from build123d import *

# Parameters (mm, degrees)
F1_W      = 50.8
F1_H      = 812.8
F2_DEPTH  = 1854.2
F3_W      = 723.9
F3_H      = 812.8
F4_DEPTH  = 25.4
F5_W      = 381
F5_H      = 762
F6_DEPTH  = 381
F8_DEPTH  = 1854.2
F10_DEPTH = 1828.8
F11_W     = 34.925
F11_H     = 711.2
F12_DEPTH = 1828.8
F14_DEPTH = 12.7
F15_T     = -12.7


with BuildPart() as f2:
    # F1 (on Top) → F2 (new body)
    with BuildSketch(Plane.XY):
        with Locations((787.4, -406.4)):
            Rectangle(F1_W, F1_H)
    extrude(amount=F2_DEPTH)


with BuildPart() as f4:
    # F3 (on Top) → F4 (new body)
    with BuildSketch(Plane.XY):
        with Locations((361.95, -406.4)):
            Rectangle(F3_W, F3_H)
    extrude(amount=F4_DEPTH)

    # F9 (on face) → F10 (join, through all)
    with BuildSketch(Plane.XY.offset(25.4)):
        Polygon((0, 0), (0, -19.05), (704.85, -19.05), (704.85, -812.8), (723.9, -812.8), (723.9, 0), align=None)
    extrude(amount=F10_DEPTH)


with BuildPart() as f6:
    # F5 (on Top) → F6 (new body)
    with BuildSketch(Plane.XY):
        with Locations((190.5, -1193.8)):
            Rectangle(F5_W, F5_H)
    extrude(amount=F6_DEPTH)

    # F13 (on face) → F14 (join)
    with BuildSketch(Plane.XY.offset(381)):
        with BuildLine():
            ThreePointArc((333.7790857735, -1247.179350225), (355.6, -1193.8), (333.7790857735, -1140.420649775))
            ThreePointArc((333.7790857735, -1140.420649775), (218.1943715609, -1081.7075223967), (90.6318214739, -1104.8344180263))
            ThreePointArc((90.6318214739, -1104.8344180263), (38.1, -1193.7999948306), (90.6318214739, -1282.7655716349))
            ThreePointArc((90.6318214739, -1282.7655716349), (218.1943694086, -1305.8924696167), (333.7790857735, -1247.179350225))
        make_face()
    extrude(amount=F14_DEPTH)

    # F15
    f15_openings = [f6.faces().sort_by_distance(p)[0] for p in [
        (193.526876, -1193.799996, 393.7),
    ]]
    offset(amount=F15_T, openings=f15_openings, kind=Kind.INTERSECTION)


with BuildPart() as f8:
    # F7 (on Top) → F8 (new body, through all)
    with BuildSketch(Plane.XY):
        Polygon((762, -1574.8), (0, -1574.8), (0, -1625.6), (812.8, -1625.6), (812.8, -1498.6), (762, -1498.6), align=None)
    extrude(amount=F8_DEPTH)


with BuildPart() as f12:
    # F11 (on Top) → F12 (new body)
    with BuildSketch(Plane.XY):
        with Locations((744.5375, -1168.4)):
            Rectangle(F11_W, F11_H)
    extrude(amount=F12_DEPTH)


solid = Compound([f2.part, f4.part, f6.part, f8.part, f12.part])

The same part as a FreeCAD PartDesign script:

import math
import FreeCAD as App
import Part
import Sketcher
from FreeCAD import Vector
Q = App.Units.Quantity


def faces_at(feature, points):
    """Names of the faces that lie closest to the given points."""
    faces = feature.Shape.Faces
    near = lambda p: min(range(len(faces)), key=lambda i: faces[i].distToShape(Part.Vertex(*p))[0])
    return sorted({f"Face{near(p) + 1}" for p in points})

doc = App.newDocument("Part")
body = doc.addObject("PartDesign::Body", "Body")

sketch1 = body.newObject("Sketcher::SketchObject", "Sketch")
sketch1.AttachmentSupport = (doc.getObject("XY_Plane"), [""])
sketch1.MapMode = "FlatFace"
sketch1.addGeometry([
    Part.LineSegment(Vector(762, 0, 0), Vector(762, -812.8, 0)),
    Part.LineSegment(Vector(762, -812.8, 0), Vector(812.8, -812.8, 0)),
    Part.LineSegment(Vector(812.8, -812.8, 0), Vector(812.8, 0, 0)),
    Part.LineSegment(Vector(812.8, 0, 0), Vector(762, 0, 0)),
], False)
sketch1.addConstraint([
    Sketcher.Constraint("Coincident", 0, 2, 1, 1),
    Sketcher.Constraint("Coincident", 1, 2, 2, 1),
    Sketcher.Constraint("Coincident", 2, 2, 3, 1),
    Sketcher.Constraint("Coincident", 3, 2, 0, 1),
    Sketcher.Constraint("Vertical", 0),
    Sketcher.Constraint("Horizontal", 1),
    Sketcher.Constraint("Vertical", 2),
    Sketcher.Constraint("Horizontal", 3),
    Sketcher.Constraint("PointOnObject", 2, 2, -1),
    Sketcher.Constraint("DistanceX", 1, 1, 1, 2, Q("2 in")),
    Sketcher.Constraint("DistanceY", 0, 2, 0, 1, Q("32 in")),
    Sketcher.Constraint("DistanceX", -1, 1, 0, 2, Q("30 in")),
])
pad1 = body.newObject("PartDesign::Pad", "Pad")
pad1.Profile = sketch1
pad1.Length = Q("73 in")
body2 = doc.addObject("PartDesign::Body", "Body001")

sketch2 = body2.newObject("Sketcher::SketchObject", "Sketch001")
sketch2.AttachmentSupport = (doc.getObject("XY_Plane001"), [""])
sketch2.MapMode = "FlatFace"
sketch2.addGeometry([
    Part.LineSegment(Vector(0, 0, 0), Vector(0, -812.8, 0)),
    Part.LineSegment(Vector(0, -812.8, 0), Vector(723.9, -812.8, 0)),
    Part.LineSegment(Vector(723.9, -812.8, 0), Vector(723.9, 0, 0)),
    Part.LineSegment(Vector(723.9, 0, 0), Vector(0, 0, 0)),
], False)
sketch2.addConstraint([
    Sketcher.Constraint("Coincident", 0, 2, 1, 1),
    Sketcher.Constraint("Coincident", 1, 2, 2, 1),
    Sketcher.Constraint("Coincident", 2, 2, 3, 1),
    Sketcher.Constraint("Coincident", 3, 2, 0, 1),
    Sketcher.Constraint("Vertical", 0),
    Sketcher.Constraint("Horizontal", 1),
    Sketcher.Constraint("Vertical", 2),
    Sketcher.Constraint("Horizontal", 3),
    Sketcher.Constraint("Coincident", 3, 2, -1, 1),
    Sketcher.Constraint("DistanceY", 0, 2, 0, 1, Q("32 in")),
    Sketcher.Constraint("DistanceX", 1, 1, 1, 2, Q("28.5 in")),
])
pad2 = body2.newObject("PartDesign::Pad", "Pad001")
pad2.Profile = sketch2
pad2.Length = Q("1 in")

sketch3 = body2.newObject("Sketcher::SketchObject", "Sketch002")
sketch3.AttachmentSupport = (doc.getObject("XY_Plane001"), [""])
sketch3.MapMode = "FlatFace"
sketch3.AttachmentOffset = App.Placement(Vector(0, 0, 1 * 25.4), App.Rotation())
sketch3.addGeometry([
    Part.LineSegment(Vector(0, 0, 0), Vector(0, -19.05, 0)),
    Part.LineSegment(Vector(0, -19.05, 0), Vector(704.85, -19.05, 0)),
    Part.LineSegment(Vector(704.85, -19.05, 0), Vector(704.85, -812.8, 0)),
    Part.LineSegment(Vector(704.85, -812.8, 0), Vector(723.9, -812.8, 0)),
    Part.LineSegment(Vector(723.9, -812.8, 0), Vector(723.9, 0, 0)),
    Part.LineSegment(Vector(723.9, 0, 0), Vector(0, 0, 0)),
], False)
sketch3.addConstraint([
    Sketcher.Constraint("Coincident", 0, 2, 1, 1),
    Sketcher.Constraint("Coincident", 1, 2, 2, 1),
    Sketcher.Constraint("Coincident", 2, 2, 3, 1),
    Sketcher.Constraint("Coincident", 3, 2, 4, 1),
    Sketcher.Constraint("Coincident", 4, 2, 5, 1),
    Sketcher.Constraint("Coincident", 5, 2, 0, 1),
    Sketcher.Constraint("Vertical", 0),
    Sketcher.Constraint("Horizontal", 1),
    Sketcher.Constraint("Vertical", 2),
    Sketcher.Constraint("Horizontal", 3),
    Sketcher.Constraint("Vertical", 4),
    Sketcher.Constraint("Horizontal", 5),
    Sketcher.Constraint("Coincident", 5, 2, -1, 1),
    Sketcher.Constraint("Equal", 3, 0),
    Sketcher.Constraint("DistanceY", 4, 1, 4, 2, Q("32 in")),
    Sketcher.Constraint("DistanceX", 5, 2, 5, 1, Q("28.5 in")),
    Sketcher.Constraint("DistanceX", 1, 1, 1, 2, Q("27.75 in")),
])
pad3 = body2.newObject("PartDesign::Pad", "Pad002")
pad3.Profile = sketch3
pad3.Length = Q("72 in")
body3 = doc.addObject("PartDesign::Body", "Body002")

sketch4 = body3.newObject("Sketcher::SketchObject", "Sketch003")
sketch4.AttachmentSupport = (doc.getObject("XY_Plane002"), [""])
sketch4.MapMode = "FlatFace"
sketch4.addGeometry([
    Part.LineSegment(Vector(0, -812.8, 0), Vector(0, -1574.8, 0)),
    Part.LineSegment(Vector(0, -1574.8, 0), Vector(381, -1574.8, 0)),
    Part.LineSegment(Vector(381, -1574.8, 0), Vector(381, -812.8, 0)),
    Part.LineSegment(Vector(381, -812.8, 0), Vector(0, -812.8, 0)),
], False)
sketch4.addConstraint([
    Sketcher.Constraint("Coincident", 0, 2, 1, 1),
    Sketcher.Constraint("Coincident", 1, 2, 2, 1),
    Sketcher.Constraint("Coincident", 2, 2, 3, 1),
    Sketcher.Constraint("Coincident", 3, 2, 0, 1),
    Sketcher.Constraint("Vertical", 0),
    Sketcher.Constraint("Horizontal", 1),
    Sketcher.Constraint("Vertical", 2),
    Sketcher.Constraint("Horizontal", 3),
    Sketcher.Constraint("PointOnObject", 0, 2, -2),
    Sketcher.Constraint("DistanceX", 1, 1, 1, 2, Q("15 in")),
    Sketcher.Constraint("DistanceY", 0, 2, 0, 1, Q("30 in")),
    Sketcher.Constraint("DistanceY", 0, 2, -1, 1, Q("62 in")),
])
pad4 = body3.newObject("PartDesign::Pad", "Pad003")
pad4.Profile = sketch4
pad4.Length = Q("15 in")

sketch5 = body3.newObject("Sketcher::SketchObject", "Sketch004")
sketch5.AttachmentSupport = (doc.getObject("XY_Plane002"), [""])
sketch5.MapMode = "FlatFace"
sketch5.AttachmentOffset = App.Placement(Vector(0, 0, 15 * 25.4), App.Rotation())
sketch5.addGeometry([
    Part.ArcOfCircle(Part.Circle(Vector(279.4, -1193.8, 0), Vector(0, 0, 1), 76.2), math.radians(-44.46845), math.radians(44.46845)),
    Part.ArcOfCircle(Part.Circle(Vector(188.768179, -1282.765572, 0), Vector(0, 0, 1), 203.2), math.radians(44.468445), math.radians(118.878544)),
    Part.ArcOfCircle(Part.Circle(Vector(139.7, -1193.799995, 0), Vector(0, 0, 1), 101.6), math.radians(118.878544), math.radians(241.121456)),
    Part.ArcOfCircle(Part.Circle(Vector(188.768183, -1104.834409, 0), Vector(0, 0, 1), 203.20001), math.radians(-118.878544), math.radians(-44.46845)),
], False)
sketch5.addConstraint([
    Sketcher.Constraint("Tangent", 0, 2, 1, 1),
    Sketcher.Constraint("Tangent", 1, 2, 2, 1),
    Sketcher.Constraint("Tangent", 2, 2, 3, 1),
    Sketcher.Constraint("Tangent", 3, 2, 0, 1),
    Sketcher.Constraint("Horizontal", 1, 3, 2, 2),
    Sketcher.Constraint("Vertical", 1, 2, 2, 2),
    Sketcher.Constraint("Vertical", 0, 2, 3, 2),
    Sketcher.Constraint("Radius", 0, Q("3 in")),
    Sketcher.Constraint("Radius", 1, Q("8 in")),
    Sketcher.Constraint("DistanceX", -1, 1, 0, 3, Q("11 in")),
    Sketcher.Constraint("DistanceY", 0, 3, -1, 1, Q("47 in")),
    Sketcher.Constraint("DistanceX", -1, 1, 2, 3, Q("5.5 in")),
])
pad5 = body3.newObject("PartDesign::Pad", "Pad004")
pad5.Profile = sketch5
pad5.Length = Q("0.5 in")
doc.recompute()

thickness = body3.newObject("PartDesign::Thickness", "Thickness")
thickness.Base = (pad5, faces_at(pad5, [(196.85, -1193.8, 393.7)]))
thickness.Value = Q("0.5 in")
thickness.Reversed = True
thickness.Join = "Intersection"
body4 = doc.addObject("PartDesign::Body", "Body003")

sketch6 = body4.newObject("Sketcher::SketchObject", "Sketch005")
sketch6.AttachmentSupport = (doc.getObject("XY_Plane003"), [""])
sketch6.MapMode = "FlatFace"
sketch6.addGeometry([
    Part.LineSegment(Vector(762, -1574.8, 0), Vector(0, -1574.8, 0)),
    Part.LineSegment(Vector(0, -1574.8, 0), Vector(0, -1625.6, 0)),
    Part.LineSegment(Vector(0, -1625.6, 0), Vector(812.8, -1625.6, 0)),
    Part.LineSegment(Vector(812.8, -1625.6, 0), Vector(812.8, -1498.6, 0)),
    Part.LineSegment(Vector(812.8, -1498.6, 0), Vector(762, -1498.6, 0)),
    Part.LineSegment(Vector(762, -1498.6, 0), Vector(762, -1574.8, 0)),
], False)
sketch6.addConstraint([
    Sketcher.Constraint("Coincident", 0, 2, 1, 1),
    Sketcher.Constraint("Coincident", 1, 2, 2, 1),
    Sketcher.Constraint("Coincident", 2, 2, 3, 1),
    Sketcher.Constraint("Coincident", 3, 2, 4, 1),
    Sketcher.Constraint("Coincident", 4, 2, 5, 1),
    Sketcher.Constraint("Coincident", 5, 2, 0, 1),
    Sketcher.Constraint("Horizontal", 0),
    Sketcher.Constraint("Vertical", 1),
    Sketcher.Constraint("Horizontal", 2),
    Sketcher.Constraint("Vertical", 3),
    Sketcher.Constraint("Horizontal", 4),
    Sketcher.Constraint("Vertical", 5),
    Sketcher.Constraint("PointOnObject", 0, 2, -2),
    Sketcher.Constraint("Equal", 4, 1),
    Sketcher.Constraint("DistanceX", 0, 2, 0, 1, Q("30 in")),
    Sketcher.Constraint("DistanceX", 2, 1, 2, 2, Q("32 in")),
    Sketcher.Constraint("DistanceY", 3, 1, 3, 2, Q("5 in")),
    Sketcher.Constraint("DistanceY", 0, 2, -1, 1, Q("62 in")),
])
pad6 = body4.newObject("PartDesign::Pad", "Pad005")
pad6.Profile = sketch6
pad6.Length = Q("73 in")
body5 = doc.addObject("PartDesign::Body", "Body004")

sketch7 = body5.newObject("Sketcher::SketchObject", "Sketch006")
sketch7.AttachmentSupport = (doc.getObject("XY_Plane004"), [""])
sketch7.MapMode = "FlatFace"
sketch7.addGeometry([
    Part.LineSegment(Vector(727.075, -812.8, 0), Vector(727.075, -1524, 0)),
    Part.LineSegment(Vector(727.075, -1524, 0), Vector(762, -1524, 0)),
    Part.LineSegment(Vector(762, -1524, 0), Vector(762, -812.8, 0)),
    Part.LineSegment(Vector(762, -812.8, 0), Vector(727.075, -812.8, 0)),
], False)
sketch7.addConstraint([
    Sketcher.Constraint("Coincident", 0, 2, 1, 1),
    Sketcher.Constraint("Coincident", 1, 2, 2, 1),
    Sketcher.Constraint("Coincident", 2, 2, 3, 1),
    Sketcher.Constraint("Coincident", 3, 2, 0, 1),
    Sketcher.Constraint("Vertical", 0),
    Sketcher.Constraint("Horizontal", 1),
    Sketcher.Constraint("Vertical", 2),
    Sketcher.Constraint("Horizontal", 3),
    Sketcher.Constraint("DistanceY", 0, 2, 0, 1, Q("28 in")),
    Sketcher.Constraint("DistanceY", 0, 2, -1, 1, Q("60 in")),
    Sketcher.Constraint("DistanceX", -1, 1, 1, 2, Q("30 in")),
    Sketcher.Constraint("DistanceX", 1, 1, 1, 2, Q("1.375 in")),
])
pad7 = body5.newObject("PartDesign::Pad", "Pad006")
pad7.Profile = sketch7
pad7.Length = Q("72 in")

doc.recompute()
